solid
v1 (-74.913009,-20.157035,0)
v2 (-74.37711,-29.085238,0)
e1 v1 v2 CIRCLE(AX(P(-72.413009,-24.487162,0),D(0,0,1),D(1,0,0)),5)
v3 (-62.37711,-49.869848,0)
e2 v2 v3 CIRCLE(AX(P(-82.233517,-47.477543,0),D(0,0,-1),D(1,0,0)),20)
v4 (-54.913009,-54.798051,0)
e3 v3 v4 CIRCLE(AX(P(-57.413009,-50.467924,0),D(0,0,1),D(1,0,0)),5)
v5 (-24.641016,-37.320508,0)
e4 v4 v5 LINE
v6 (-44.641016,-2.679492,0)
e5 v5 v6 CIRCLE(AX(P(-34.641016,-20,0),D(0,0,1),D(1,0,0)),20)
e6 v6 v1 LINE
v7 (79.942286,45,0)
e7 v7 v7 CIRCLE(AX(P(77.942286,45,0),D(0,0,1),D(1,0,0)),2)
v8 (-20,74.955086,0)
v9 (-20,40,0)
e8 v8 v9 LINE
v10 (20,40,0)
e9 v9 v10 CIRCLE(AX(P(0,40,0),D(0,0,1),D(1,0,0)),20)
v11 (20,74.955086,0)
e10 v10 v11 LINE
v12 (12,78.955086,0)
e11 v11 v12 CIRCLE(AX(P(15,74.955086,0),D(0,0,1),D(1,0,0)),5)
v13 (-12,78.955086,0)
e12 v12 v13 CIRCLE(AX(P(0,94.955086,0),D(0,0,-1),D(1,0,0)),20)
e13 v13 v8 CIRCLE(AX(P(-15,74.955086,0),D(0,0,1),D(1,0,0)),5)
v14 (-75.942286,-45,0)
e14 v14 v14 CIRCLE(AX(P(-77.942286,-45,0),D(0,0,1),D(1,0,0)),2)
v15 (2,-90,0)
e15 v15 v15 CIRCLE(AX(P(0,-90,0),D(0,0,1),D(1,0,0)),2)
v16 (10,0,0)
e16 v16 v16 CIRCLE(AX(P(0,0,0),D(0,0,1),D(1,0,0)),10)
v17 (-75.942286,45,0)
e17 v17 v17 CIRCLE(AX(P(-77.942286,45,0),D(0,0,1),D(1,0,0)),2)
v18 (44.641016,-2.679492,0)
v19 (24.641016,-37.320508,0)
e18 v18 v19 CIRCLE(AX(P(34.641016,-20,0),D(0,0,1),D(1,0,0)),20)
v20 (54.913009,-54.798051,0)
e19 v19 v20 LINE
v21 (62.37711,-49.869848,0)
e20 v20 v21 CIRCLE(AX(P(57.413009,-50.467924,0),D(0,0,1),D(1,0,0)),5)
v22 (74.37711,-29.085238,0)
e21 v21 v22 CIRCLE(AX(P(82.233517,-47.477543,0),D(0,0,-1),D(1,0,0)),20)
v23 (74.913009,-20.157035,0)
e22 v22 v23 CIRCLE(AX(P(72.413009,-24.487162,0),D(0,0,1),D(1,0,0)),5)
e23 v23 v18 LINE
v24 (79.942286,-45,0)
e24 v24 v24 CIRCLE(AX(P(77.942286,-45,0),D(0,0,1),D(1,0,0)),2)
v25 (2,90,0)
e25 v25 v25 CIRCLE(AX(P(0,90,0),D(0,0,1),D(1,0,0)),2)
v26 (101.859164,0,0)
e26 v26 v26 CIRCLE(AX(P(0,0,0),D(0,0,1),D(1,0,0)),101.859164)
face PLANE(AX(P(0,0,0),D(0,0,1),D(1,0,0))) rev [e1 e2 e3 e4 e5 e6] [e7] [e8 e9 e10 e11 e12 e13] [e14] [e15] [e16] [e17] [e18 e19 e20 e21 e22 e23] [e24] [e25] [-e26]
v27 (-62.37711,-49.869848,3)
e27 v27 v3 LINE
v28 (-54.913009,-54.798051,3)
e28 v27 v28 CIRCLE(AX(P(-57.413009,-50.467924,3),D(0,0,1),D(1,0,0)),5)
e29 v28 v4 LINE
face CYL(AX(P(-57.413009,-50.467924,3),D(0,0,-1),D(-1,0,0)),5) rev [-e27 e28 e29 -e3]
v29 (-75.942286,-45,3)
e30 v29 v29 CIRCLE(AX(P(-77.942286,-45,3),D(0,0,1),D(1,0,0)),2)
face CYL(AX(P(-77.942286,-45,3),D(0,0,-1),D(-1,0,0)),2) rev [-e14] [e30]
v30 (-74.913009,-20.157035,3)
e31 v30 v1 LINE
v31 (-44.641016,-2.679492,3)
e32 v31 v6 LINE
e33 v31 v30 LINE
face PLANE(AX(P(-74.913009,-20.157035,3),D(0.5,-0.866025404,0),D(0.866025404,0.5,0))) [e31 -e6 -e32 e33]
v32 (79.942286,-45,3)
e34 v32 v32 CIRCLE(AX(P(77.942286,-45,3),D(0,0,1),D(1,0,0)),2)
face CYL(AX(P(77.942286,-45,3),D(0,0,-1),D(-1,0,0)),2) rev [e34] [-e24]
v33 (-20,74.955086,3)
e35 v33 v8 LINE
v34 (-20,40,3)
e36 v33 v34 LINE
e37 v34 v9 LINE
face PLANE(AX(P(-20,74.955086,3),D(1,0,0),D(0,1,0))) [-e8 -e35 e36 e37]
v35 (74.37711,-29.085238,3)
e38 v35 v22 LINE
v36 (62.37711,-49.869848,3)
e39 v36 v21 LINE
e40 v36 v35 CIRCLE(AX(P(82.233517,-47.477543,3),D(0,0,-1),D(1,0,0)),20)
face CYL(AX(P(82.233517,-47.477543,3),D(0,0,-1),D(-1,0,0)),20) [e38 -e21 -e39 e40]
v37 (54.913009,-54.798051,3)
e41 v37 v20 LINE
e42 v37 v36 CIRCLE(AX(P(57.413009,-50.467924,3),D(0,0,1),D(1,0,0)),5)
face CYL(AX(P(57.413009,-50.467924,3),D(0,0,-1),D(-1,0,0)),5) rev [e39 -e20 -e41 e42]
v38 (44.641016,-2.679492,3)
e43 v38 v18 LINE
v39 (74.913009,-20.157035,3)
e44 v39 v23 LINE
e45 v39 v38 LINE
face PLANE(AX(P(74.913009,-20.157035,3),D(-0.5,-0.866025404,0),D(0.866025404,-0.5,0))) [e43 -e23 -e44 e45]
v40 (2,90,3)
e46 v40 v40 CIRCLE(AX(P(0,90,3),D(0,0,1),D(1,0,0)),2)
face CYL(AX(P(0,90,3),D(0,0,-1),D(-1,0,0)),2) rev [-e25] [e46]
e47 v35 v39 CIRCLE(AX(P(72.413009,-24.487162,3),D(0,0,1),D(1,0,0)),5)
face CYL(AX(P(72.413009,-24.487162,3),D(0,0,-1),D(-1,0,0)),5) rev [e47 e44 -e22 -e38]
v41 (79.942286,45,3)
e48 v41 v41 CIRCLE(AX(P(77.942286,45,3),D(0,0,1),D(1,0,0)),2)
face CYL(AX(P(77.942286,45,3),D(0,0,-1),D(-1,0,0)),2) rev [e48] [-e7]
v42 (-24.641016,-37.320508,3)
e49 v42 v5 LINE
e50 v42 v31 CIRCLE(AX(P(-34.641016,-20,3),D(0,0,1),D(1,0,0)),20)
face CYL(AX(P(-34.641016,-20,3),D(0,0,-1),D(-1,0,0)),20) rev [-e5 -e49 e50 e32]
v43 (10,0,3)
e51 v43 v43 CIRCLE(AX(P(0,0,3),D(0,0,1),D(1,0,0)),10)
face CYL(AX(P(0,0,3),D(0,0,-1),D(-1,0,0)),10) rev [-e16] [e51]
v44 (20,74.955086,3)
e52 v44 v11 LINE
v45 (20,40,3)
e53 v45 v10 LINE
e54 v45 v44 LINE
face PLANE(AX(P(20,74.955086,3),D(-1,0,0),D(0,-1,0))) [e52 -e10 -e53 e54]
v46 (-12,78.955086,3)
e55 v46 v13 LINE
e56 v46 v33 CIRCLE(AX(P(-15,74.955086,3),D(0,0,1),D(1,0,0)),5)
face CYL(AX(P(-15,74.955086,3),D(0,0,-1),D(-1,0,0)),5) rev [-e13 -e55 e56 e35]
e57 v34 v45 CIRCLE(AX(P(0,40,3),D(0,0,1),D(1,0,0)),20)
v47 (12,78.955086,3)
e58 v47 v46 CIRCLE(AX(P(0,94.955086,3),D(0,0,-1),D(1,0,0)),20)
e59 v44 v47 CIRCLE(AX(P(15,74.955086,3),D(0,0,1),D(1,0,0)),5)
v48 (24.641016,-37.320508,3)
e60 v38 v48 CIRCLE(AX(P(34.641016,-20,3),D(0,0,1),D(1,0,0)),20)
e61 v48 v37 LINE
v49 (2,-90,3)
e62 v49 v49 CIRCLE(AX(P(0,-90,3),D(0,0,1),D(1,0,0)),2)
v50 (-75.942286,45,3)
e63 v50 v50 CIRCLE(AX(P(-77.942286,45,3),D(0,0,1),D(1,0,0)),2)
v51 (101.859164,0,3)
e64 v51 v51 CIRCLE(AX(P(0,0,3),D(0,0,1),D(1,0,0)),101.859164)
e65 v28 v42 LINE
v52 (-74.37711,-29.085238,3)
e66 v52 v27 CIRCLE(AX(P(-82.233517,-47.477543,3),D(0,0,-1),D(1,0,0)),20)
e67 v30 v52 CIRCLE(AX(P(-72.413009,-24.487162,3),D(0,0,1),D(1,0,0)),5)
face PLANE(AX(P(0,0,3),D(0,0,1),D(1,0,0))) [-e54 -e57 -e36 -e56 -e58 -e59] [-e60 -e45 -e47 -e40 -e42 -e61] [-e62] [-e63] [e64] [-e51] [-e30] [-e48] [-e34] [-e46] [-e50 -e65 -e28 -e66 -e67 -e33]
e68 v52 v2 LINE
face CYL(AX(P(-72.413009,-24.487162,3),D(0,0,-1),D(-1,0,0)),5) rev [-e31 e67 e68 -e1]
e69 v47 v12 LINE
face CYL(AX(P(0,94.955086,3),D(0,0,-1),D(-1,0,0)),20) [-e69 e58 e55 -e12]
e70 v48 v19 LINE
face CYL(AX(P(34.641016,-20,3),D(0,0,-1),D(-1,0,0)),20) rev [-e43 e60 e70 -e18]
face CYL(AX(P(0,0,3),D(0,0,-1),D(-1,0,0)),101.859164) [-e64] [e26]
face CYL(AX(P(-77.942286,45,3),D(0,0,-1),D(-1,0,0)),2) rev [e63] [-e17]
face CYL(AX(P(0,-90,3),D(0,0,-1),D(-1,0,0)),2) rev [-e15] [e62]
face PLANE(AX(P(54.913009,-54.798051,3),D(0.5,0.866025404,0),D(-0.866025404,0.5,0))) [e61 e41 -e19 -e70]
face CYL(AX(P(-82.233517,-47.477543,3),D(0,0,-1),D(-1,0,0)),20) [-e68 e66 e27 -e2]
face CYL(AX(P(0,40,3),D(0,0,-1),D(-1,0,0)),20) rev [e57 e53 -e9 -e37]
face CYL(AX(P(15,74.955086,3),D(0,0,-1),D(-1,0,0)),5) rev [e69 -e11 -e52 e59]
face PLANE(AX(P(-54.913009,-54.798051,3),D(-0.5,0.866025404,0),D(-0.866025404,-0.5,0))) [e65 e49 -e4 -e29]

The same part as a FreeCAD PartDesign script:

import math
import FreeCAD as App
import Part
import Sketcher
from FreeCAD import Vector
Q = App.Units.Quantity

doc = App.newDocument("Part")
body = doc.addObject("PartDesign::Body", "Body")

# Sketch on XY plane
sketch1 = body.newObject("Sketcher::SketchObject", "Sketch")
sketch1.AttachmentSupport = (doc.getObject("XY_Plane"), [""])
sketch1.MapMode = "FlatFace"
sketch1.addGeometry([
    Part.Circle(Vector(0, 0, 0), Vector(0, 0, 1), 101.9),  # 0
    Part.Circle(Vector(-77.9, -45, 0), Vector(0, 0, 1), 2),  # 1
    Part.LineSegment(Vector(-24.6, -37.3, 0), Vector(-54.9, -54.8, 0)),  # 2
    Part.ArcOfCircle(Part.Circle(Vector(-57.4, -50.5, 0), Vector(0, 0, 1), 5), math.radians(173), math.radians(300)),  # 3
    Part.ArcOfCircle(Part.Circle(Vector(-82.2, -47.5, 0), Vector(0, 0, 1), 20), math.radians(-7), math.radians(67)),  # 4
    Part.ArcOfCircle(Part.Circle(Vector(-72.4, -24.5, 0), Vector(0, 0, 1), 5), math.radians(120), math.radians(247)),  # 5
    Part.LineSegment(Vector(-74.9, -20.2, 0), Vector(-44.6, -2.7, 0)),  # 6
    Part.ArcOfCircle(Part.Circle(Vector(-34.6, -20, 0), Vector(0, 0, 1), 20), math.radians(-60), math.radians(120)),  # 7
    Part.Circle(Vector(0, -90, 0), Vector(0, 0, 1), 2),  # 8
    Part.LineSegment(Vector(44.6, -2.7, 0), Vector(74.9, -20.2, 0)),  # 9
    Part.ArcOfCircle(Part.Circle(Vector(72.4, -24.5, 0), Vector(0, 0, 1), 5), math.radians(-67), math.radians(60)),  # 10
    Part.ArcOfCircle(Part.Circle(Vector(82.2, -47.5, 0), Vector(0, 0, 1), 20), math.radians(113), math.radians(187)),  # 11
    Part.ArcOfCircle(Part.Circle(Vector(57.4, -50.5, 0), Vector(0, 0, 1), 5), math.radians(-120), math.radians(7)),  # 12
    Part.LineSegment(Vector(54.9, -54.8, 0), Vector(24.6, -37.3, 0)),  # 13
    Part.ArcOfCircle(Part.Circle(Vector(34.6, -20, 0), Vector(0, 0, 1), 20), math.radians(60), math.radians(240)),  # 14
    Part.Circle(Vector(77.9, -45, 0), Vector(0, 0, 1), 2),  # 15
    Part.Circle(Vector(-77.9, 45, 0), Vector(0, 0, 1), 2),  # 16
    Part.Circle(Vector(0, 0, 0), Vector(0, 0, 1), 10),  # 17
    Part.Circle(Vector(77.9, 45, 0), Vector(0, 0, 1), 2),  # 18
    Part.LineSegment(Vector(-20, 40, 0), Vector(-20, 75, 0)),  # 19
    Part.ArcOfCircle(Part.Circle(Vector(-15, 75, 0), Vector(0, 0, 1), 5), math.radians(53), math.radians(180)),  # 20
    Part.ArcOfCircle(Part.Circle(Vector(0, 95, 0), Vector(0, 0, 1), 20), math.radians(-127), math.radians(-53)),  # 21
    Part.ArcOfCircle(Part.Circle(Vector(15, 75, 0), Vector(0, 0, 1), 5), math.radians(0), math.radians(127)),  # 22
    Part.LineSegment(Vector(20, 75, 0), Vector(20, 40, 0)),  # 23
    Part.ArcOfCircle(Part.Circle(Vector(0, 40, 0), Vector(0, 0, 1), 20), math.radians(180), math.radians(360)),  # 24
    Part.Circle(Vector(0, 90, 0), Vector(0, 0, 1), 2),  # 25
], False)
sketch1.addConstraint([
    Sketcher.Constraint("Tangent", 2, 2, 3, 2),
    Sketcher.Constraint("Tangent", 3, 1, 4, 1),
    Sketcher.Constraint("Tangent", 4, 2, 5, 2),
    Sketcher.Constraint("Tangent", 5, 1, 6, 1),
    Sketcher.Constraint("Tangent", 6, 2, 7, 2),
    Sketcher.Constraint("Tangent", 7, 1, 2, 1),
    Sketcher.Constraint("Tangent", 9, 2, 10, 2),
    Sketcher.Constraint("Tangent", 10, 1, 11, 1),
    Sketcher.Constraint("Tangent", 11, 2, 12, 2),
    Sketcher.Constraint("Tangent", 12, 1, 13, 1),
    Sketcher.Constraint("Tangent", 13, 2, 14, 2),
    Sketcher.Constraint("Tangent", 14, 1, 9, 1),
    Sketcher.Constraint("Tangent", 19, 2, 20, 2),
    Sketcher.Constraint("Tangent", 20, 1, 21, 1),
    Sketcher.Constraint("Tangent", 21, 2, 22, 2),
    Sketcher.Constraint("Tangent", 22, 1, 23, 1),
    Sketcher.Constraint("Tangent", 23, 2, 24, 2),
    Sketcher.Constraint("Tangent", 24, 1, 19, 1),
    Sketcher.Constraint("Vertical", 19),
    Sketcher.Constraint("Vertical", 23),
    Sketcher.Constraint("Coincident", 0, 3, -1, 1),
    Sketcher.Constraint("Coincident", 17, 3, -1, 1),
    Sketcher.Constraint("Equal", 3, 5),
    Sketcher.Constraint("Equal", 4, 7),
    Sketcher.Constraint("Equal", 1, 8),
    Sketcher.Constraint("Equal", 5, 10),
    Sketcher.Constraint("Equal", 7, 11),
    Sketcher.Constraint("Equal", 10, 12),
    Sketcher.Constraint("Equal", 11, 14),
    Sketcher.Constraint("Equal", 8, 15),
    Sketcher.Constraint("Equal", 15, 16),
    Sketcher.Constraint("Equal", 16, 18),
    Sketcher.Constraint("Equal", 12, 20),
    Sketcher.Constraint("Equal", 14, 21),
    Sketcher.Constraint("Equal", 20, 22),
    Sketcher.Constraint("Equal", 21, 24),
    Sketcher.Constraint("Equal", 18, 25),
    Sketcher.Constraint("Symmetric", 15, 3, 16, 3, -1, 1),
    Sketcher.Constraint("Symmetric", 1, 3, 18, 3, -1, 1),
    Sketcher.Constraint("Symmetric", 8, 3, 25, 3, -1, 1),
    Sketcher.Constraint("Symmetric", 5, 3, 10, 3, -2),
    Sketcher.Constraint("Symmetric", 3, 3, 12, 3, -2),
    Sketcher.Constraint("Symmetric", 7, 3, 14, 3, -2),
    Sketcher.Constraint("Symmetric", 1, 3, 15, 3, -2),
    Sketcher.Constraint("Symmetric", 20, 3, 22, 3, -2),
    Sketcher.Constraint("PointOnObject", 8, 3, -2),
    Sketcher.Constraint("Parallel", 2, 6),
    Sketcher.Constraint("Equal", 2, 6),
    Sketcher.Constraint("Diameter", 1, Q("4 mm")),
    Sketcher.Constraint("Diameter", 17, Q("20 mm")),
    Sketcher.Constraint("Radius", 3, Q("5 mm")),
    Sketcher.Constraint("Radius", 4, Q("20 mm")),
    Sketcher.Constraint("Angle", 2, Q("-150 deg")),
    Sketcher.Constraint("DistanceY", 1, 3, -1, 1, Q("45 mm")),
    Sketcher.Constraint("DistanceY", 7, 3, -1, 1, Q("20 mm")),
    Sketcher.Constraint("DistanceY", 8, 3, -1, 1, Q("90 mm")),
    Sketcher.Constraint("DistanceY", -1, 1, 24, 3, Q("40 mm")),
    Sketcher.Constraint("Diameter", 0, Q("203.718327 mm")),
    Sketcher.Constraint("DistanceX", 4, 3, 7, 3, Q("47.5925 mm")),
    Sketcher.Constraint("DistanceY", 19, 1, 19, 2, Q("34.955086 mm")),
    Sketcher.Constraint("DistanceX", 3, 3, -1, 1, Q("57.413009 mm")),
    Sketcher.Constraint("DistanceX", 4, 3, 1, 3, Q("4.29123 mm")),
])
pad1 = body.newObject("PartDesign::Pad", "Pad")
pad1.Profile = sketch1
pad1.Length = 3

doc.recompute()
